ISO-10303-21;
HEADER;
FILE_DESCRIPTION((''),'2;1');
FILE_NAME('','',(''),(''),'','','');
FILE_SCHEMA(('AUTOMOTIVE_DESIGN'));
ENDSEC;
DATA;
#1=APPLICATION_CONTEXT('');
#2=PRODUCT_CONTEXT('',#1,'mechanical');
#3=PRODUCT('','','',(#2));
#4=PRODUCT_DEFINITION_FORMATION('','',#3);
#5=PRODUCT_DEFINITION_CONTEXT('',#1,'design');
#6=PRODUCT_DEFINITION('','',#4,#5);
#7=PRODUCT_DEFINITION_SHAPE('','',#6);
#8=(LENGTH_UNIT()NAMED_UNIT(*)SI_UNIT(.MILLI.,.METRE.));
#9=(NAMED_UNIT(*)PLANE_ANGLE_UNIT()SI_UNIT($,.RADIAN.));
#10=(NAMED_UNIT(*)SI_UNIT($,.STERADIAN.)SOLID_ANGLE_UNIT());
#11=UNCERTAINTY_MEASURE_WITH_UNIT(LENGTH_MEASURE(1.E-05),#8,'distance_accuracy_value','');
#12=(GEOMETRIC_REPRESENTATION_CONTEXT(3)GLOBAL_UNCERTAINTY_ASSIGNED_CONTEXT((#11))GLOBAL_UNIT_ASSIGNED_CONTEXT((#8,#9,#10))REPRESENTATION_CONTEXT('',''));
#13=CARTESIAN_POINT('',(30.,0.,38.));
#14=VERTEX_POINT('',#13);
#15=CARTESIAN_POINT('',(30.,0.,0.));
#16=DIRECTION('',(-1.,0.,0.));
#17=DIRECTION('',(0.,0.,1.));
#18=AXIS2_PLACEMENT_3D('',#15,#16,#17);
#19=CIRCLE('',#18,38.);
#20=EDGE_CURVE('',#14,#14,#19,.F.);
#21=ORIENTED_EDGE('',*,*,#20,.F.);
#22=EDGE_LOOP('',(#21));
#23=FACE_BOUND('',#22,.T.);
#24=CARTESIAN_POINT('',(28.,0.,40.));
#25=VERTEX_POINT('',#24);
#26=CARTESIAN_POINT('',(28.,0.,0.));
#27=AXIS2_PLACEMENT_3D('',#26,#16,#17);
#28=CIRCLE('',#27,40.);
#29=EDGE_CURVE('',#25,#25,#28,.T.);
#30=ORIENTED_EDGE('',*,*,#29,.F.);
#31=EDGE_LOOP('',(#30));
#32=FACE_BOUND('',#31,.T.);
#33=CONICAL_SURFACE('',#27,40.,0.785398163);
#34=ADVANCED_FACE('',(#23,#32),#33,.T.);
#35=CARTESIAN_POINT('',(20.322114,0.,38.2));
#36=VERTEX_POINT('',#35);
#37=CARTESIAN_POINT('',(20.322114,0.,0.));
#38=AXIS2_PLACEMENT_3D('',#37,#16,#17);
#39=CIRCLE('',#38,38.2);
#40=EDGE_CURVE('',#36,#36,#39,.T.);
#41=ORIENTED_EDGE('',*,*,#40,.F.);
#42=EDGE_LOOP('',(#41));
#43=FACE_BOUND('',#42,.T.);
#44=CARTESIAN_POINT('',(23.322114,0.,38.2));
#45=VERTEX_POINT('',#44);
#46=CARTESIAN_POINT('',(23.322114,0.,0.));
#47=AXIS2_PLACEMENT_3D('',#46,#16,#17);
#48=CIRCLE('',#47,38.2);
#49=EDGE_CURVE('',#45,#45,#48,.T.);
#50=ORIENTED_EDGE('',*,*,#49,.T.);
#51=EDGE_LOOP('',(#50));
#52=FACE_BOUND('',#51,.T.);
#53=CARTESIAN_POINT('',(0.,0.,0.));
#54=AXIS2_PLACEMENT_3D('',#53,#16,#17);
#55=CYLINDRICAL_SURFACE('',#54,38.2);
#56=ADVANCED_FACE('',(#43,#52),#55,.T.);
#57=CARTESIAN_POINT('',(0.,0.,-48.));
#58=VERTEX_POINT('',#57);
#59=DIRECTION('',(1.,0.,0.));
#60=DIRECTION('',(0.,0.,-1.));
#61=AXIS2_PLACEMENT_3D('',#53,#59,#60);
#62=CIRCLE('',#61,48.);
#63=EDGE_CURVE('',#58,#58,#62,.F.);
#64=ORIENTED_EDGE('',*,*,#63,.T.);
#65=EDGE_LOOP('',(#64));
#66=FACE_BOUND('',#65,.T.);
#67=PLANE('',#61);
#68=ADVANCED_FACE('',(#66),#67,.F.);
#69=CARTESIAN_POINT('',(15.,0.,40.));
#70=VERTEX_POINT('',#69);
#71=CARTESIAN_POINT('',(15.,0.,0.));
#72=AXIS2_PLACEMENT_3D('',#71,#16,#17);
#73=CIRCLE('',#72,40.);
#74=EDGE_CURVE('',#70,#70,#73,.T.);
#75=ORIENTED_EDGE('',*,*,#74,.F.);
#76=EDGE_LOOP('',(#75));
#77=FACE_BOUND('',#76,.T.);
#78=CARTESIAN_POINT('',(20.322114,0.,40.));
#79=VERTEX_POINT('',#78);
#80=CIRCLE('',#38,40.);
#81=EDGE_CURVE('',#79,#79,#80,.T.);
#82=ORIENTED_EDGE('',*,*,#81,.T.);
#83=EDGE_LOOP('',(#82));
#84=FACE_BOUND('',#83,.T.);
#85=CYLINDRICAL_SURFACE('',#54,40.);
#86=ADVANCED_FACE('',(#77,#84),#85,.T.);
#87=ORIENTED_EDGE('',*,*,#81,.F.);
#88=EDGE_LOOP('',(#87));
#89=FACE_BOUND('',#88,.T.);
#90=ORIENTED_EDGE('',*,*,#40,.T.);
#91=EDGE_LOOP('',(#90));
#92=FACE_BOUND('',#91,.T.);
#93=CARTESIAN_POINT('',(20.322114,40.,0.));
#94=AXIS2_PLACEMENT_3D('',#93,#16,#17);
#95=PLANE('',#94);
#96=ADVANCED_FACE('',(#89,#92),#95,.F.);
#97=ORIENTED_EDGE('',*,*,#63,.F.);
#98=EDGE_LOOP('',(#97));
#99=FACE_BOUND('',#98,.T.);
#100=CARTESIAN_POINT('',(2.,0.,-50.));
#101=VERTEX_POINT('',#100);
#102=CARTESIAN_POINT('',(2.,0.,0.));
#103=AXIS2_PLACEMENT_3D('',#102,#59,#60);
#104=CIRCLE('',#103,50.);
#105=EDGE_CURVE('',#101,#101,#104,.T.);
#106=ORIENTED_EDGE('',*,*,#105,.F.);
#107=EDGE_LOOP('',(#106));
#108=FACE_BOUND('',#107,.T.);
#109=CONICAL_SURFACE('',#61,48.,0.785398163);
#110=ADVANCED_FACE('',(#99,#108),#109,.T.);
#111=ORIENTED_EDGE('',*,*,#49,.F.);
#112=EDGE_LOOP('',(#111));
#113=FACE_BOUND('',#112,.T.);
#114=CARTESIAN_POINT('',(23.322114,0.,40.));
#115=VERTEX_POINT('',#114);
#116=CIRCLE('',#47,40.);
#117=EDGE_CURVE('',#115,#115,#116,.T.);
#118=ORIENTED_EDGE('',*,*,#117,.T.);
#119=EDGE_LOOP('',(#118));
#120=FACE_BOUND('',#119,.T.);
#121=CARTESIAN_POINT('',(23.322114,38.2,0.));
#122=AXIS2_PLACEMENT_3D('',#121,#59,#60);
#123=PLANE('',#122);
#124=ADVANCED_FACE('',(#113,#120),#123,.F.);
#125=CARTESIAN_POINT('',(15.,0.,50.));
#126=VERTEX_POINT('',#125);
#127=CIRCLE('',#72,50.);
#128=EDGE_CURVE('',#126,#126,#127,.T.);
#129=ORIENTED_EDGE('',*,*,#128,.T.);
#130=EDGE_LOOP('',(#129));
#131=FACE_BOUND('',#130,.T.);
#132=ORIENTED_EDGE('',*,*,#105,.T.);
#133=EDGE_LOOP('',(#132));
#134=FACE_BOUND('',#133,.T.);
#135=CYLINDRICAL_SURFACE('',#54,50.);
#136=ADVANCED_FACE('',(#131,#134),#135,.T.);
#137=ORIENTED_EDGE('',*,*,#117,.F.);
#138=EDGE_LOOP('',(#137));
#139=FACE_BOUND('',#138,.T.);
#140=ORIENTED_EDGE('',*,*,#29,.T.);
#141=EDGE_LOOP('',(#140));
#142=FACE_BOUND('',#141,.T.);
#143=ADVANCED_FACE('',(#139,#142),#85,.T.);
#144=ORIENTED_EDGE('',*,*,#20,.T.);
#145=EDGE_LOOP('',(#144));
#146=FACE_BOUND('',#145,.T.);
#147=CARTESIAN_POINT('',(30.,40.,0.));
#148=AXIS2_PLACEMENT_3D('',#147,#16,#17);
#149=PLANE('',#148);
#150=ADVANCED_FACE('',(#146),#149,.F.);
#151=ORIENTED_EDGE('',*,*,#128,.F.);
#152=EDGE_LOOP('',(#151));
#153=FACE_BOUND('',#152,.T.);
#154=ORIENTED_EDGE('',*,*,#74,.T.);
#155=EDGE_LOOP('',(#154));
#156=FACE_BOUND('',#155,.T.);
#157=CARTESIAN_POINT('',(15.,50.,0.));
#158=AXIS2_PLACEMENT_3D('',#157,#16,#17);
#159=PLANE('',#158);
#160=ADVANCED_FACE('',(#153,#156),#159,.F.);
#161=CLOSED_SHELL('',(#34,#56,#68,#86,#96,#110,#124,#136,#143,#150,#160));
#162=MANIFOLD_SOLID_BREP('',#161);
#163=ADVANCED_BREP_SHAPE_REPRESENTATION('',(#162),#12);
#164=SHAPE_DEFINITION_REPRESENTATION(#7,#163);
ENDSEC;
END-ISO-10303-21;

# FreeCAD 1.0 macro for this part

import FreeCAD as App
import Part
import Sketcher
from FreeCAD import Vector
Q = App.Units.Quantity


def edges_at(feature, points):
    """Names of the edges that pass closest to the given points."""
    edges = feature.Shape.Edges
    near = lambda p: min(range(len(edges)), key=lambda i: edges[i].distToShape(Part.Vertex(*p))[0])
    return sorted({f"Edge{near(p) + 1}" for p in points})

doc = App.newDocument("Part")
params = doc.addObject("Spreadsheet::Sheet", "Params")
for row, (alias, value) in enumerate([
    ("sketch1_width", "30 mm"),
    ("sketch1_width2", "3 mm"),
    ("sketch1_width3", "15 mm"),
    ("sketch1_height", "50 mm"),
    ("sketch1_height2", "40 mm"),
    ("revolution_angle", "360 deg"),
    ("chamfer_size", "2 mm"),
], start=1):
    params.set(f"A{row}", alias)
    params.set(f"B{row}", "=" + value)
    params.setAlias(f"B{row}", alias)

body = doc.addObject("PartDesign::Body", "Body")

sketch1 = body.newObject("Sketcher::SketchObject", "Sketch")
sketch1.AttachmentSupport = (doc.getObject("XY_Plane"), [""])
sketch1.MapMode = "FlatFace"
sketch1.addGeometry([
    Part.LineSegment(Vector(0, 50, 0), Vector(0, 0, 0)),
    Part.LineSegment(Vector(0, 0, 0), Vector(30, 0, 0)),
    Part.LineSegment(Vector(30, 0, 0), Vector(30, 40, 0)),
    Part.LineSegment(Vector(30, 40, 0), Vector(23.322114, 40, 0)),
    Part.LineSegment(Vector(23.322114, 40, 0), Vector(23.322114, 38.2, 0)),
    Part.LineSegment(Vector(23.322114, 38.2, 0), Vector(20.322114, 38.2, 0)),
    Part.LineSegment(Vector(20.322114, 38.2, 0), Vector(20.322114, 40, 0)),
    Part.LineSegment(Vector(20.322114, 40, 0), Vector(15, 40, 0)),
    Part.LineSegment(Vector(15, 40, 0), Vector(15, 50, 0)),
    Part.LineSegment(Vector(15, 50, 0), Vector(0, 50, 0)),
], False)
sketch1.addConstraint([
    Sketcher.Constraint("Coincident", 0, 2, 1, 1),
    Sketcher.Constraint("Coincident", 1, 2, 2, 1),
    Sketcher.Constraint("Coincident", 2, 2, 3, 1),
    Sketcher.Constraint("Coincident", 3, 2, 4, 1),
    Sketcher.Constraint("Coincident", 4, 2, 5, 1),
    Sketcher.Constraint("Coincident", 5, 2, 6, 1),
    Sketcher.Constraint("Coincident", 6, 2, 7, 1),
    Sketcher.Constraint("Coincident", 7, 2, 8, 1),
    Sketcher.Constraint("Coincident", 8, 2, 9, 1),
    Sketcher.Constraint("Coincident", 9, 2, 0, 1),
    Sketcher.Constraint("Vertical", 0),
    Sketcher.Constraint("Horizontal", 1),
    Sketcher.Constraint("Vertical", 2),
    Sketcher.Constraint("Horizontal", 3),
    Sketcher.Constraint("Vertical", 4),
    Sketcher.Constraint("Horizontal", 5),
    Sketcher.Constraint("Vertical", 6),
    Sketcher.Constraint("Horizontal", 7),
    Sketcher.Constraint("Vertical", 8),
    Sketcher.Constraint("Horizontal", 9),
    Sketcher.Constraint("Coincident", 0, 2, -1, 1),
    Sketcher.Constraint("Horizontal", 3, 2, 6, 2),
    Sketcher.Constraint("DistanceX", 1, 1, 1, 2, Q("30 mm")),
    Sketcher.Constraint("DistanceX", 5, 2, 5, 1, Q("3 mm")),
    Sketcher.Constraint("DistanceX", 9, 2, 9, 1, Q("15 mm")),
    Sketcher.Constraint("DistanceY", 0, 2, 0, 1, Q("50 mm")),
    Sketcher.Constraint("DistanceY", 2, 1, 2, 2, Q("40 mm")),
    Sketcher.Constraint("DistanceY", 4, 2, 4, 1, Q("1.8 mm")),
    Sketcher.Constraint("DistanceX", 3, 2, 3, 1, Q("6.677886 mm")),
])
sketch1.setExpression("Constraints[22]", "Params.sketch1_width")
sketch1.setExpression("Constraints[23]", "Params.sketch1_width2")
sketch1.setExpression("Constraints[24]", "Params.sketch1_width3")
sketch1.setExpression("Constraints[25]", "Params.sketch1_height")
sketch1.setExpression("Constraints[26]", "Params.sketch1_height2")
revolution = body.newObject("PartDesign::Revolution", "Revolution")
revolution.Profile = sketch1
revolution.ReferenceAxis = (sketch1, ["H_Axis"])
revolution.setExpression("Angle", "Params.revolution_angle")
doc.recompute()

chamfer = body.newObject("PartDesign::Chamfer", "Chamfer")
chamfer.Base = (revolution, edges_at(revolution, [(0, -50, 0), (30, -40, 0)]))
chamfer.setExpression("Size", "Params.chamfer_size")

doc.recompute()
